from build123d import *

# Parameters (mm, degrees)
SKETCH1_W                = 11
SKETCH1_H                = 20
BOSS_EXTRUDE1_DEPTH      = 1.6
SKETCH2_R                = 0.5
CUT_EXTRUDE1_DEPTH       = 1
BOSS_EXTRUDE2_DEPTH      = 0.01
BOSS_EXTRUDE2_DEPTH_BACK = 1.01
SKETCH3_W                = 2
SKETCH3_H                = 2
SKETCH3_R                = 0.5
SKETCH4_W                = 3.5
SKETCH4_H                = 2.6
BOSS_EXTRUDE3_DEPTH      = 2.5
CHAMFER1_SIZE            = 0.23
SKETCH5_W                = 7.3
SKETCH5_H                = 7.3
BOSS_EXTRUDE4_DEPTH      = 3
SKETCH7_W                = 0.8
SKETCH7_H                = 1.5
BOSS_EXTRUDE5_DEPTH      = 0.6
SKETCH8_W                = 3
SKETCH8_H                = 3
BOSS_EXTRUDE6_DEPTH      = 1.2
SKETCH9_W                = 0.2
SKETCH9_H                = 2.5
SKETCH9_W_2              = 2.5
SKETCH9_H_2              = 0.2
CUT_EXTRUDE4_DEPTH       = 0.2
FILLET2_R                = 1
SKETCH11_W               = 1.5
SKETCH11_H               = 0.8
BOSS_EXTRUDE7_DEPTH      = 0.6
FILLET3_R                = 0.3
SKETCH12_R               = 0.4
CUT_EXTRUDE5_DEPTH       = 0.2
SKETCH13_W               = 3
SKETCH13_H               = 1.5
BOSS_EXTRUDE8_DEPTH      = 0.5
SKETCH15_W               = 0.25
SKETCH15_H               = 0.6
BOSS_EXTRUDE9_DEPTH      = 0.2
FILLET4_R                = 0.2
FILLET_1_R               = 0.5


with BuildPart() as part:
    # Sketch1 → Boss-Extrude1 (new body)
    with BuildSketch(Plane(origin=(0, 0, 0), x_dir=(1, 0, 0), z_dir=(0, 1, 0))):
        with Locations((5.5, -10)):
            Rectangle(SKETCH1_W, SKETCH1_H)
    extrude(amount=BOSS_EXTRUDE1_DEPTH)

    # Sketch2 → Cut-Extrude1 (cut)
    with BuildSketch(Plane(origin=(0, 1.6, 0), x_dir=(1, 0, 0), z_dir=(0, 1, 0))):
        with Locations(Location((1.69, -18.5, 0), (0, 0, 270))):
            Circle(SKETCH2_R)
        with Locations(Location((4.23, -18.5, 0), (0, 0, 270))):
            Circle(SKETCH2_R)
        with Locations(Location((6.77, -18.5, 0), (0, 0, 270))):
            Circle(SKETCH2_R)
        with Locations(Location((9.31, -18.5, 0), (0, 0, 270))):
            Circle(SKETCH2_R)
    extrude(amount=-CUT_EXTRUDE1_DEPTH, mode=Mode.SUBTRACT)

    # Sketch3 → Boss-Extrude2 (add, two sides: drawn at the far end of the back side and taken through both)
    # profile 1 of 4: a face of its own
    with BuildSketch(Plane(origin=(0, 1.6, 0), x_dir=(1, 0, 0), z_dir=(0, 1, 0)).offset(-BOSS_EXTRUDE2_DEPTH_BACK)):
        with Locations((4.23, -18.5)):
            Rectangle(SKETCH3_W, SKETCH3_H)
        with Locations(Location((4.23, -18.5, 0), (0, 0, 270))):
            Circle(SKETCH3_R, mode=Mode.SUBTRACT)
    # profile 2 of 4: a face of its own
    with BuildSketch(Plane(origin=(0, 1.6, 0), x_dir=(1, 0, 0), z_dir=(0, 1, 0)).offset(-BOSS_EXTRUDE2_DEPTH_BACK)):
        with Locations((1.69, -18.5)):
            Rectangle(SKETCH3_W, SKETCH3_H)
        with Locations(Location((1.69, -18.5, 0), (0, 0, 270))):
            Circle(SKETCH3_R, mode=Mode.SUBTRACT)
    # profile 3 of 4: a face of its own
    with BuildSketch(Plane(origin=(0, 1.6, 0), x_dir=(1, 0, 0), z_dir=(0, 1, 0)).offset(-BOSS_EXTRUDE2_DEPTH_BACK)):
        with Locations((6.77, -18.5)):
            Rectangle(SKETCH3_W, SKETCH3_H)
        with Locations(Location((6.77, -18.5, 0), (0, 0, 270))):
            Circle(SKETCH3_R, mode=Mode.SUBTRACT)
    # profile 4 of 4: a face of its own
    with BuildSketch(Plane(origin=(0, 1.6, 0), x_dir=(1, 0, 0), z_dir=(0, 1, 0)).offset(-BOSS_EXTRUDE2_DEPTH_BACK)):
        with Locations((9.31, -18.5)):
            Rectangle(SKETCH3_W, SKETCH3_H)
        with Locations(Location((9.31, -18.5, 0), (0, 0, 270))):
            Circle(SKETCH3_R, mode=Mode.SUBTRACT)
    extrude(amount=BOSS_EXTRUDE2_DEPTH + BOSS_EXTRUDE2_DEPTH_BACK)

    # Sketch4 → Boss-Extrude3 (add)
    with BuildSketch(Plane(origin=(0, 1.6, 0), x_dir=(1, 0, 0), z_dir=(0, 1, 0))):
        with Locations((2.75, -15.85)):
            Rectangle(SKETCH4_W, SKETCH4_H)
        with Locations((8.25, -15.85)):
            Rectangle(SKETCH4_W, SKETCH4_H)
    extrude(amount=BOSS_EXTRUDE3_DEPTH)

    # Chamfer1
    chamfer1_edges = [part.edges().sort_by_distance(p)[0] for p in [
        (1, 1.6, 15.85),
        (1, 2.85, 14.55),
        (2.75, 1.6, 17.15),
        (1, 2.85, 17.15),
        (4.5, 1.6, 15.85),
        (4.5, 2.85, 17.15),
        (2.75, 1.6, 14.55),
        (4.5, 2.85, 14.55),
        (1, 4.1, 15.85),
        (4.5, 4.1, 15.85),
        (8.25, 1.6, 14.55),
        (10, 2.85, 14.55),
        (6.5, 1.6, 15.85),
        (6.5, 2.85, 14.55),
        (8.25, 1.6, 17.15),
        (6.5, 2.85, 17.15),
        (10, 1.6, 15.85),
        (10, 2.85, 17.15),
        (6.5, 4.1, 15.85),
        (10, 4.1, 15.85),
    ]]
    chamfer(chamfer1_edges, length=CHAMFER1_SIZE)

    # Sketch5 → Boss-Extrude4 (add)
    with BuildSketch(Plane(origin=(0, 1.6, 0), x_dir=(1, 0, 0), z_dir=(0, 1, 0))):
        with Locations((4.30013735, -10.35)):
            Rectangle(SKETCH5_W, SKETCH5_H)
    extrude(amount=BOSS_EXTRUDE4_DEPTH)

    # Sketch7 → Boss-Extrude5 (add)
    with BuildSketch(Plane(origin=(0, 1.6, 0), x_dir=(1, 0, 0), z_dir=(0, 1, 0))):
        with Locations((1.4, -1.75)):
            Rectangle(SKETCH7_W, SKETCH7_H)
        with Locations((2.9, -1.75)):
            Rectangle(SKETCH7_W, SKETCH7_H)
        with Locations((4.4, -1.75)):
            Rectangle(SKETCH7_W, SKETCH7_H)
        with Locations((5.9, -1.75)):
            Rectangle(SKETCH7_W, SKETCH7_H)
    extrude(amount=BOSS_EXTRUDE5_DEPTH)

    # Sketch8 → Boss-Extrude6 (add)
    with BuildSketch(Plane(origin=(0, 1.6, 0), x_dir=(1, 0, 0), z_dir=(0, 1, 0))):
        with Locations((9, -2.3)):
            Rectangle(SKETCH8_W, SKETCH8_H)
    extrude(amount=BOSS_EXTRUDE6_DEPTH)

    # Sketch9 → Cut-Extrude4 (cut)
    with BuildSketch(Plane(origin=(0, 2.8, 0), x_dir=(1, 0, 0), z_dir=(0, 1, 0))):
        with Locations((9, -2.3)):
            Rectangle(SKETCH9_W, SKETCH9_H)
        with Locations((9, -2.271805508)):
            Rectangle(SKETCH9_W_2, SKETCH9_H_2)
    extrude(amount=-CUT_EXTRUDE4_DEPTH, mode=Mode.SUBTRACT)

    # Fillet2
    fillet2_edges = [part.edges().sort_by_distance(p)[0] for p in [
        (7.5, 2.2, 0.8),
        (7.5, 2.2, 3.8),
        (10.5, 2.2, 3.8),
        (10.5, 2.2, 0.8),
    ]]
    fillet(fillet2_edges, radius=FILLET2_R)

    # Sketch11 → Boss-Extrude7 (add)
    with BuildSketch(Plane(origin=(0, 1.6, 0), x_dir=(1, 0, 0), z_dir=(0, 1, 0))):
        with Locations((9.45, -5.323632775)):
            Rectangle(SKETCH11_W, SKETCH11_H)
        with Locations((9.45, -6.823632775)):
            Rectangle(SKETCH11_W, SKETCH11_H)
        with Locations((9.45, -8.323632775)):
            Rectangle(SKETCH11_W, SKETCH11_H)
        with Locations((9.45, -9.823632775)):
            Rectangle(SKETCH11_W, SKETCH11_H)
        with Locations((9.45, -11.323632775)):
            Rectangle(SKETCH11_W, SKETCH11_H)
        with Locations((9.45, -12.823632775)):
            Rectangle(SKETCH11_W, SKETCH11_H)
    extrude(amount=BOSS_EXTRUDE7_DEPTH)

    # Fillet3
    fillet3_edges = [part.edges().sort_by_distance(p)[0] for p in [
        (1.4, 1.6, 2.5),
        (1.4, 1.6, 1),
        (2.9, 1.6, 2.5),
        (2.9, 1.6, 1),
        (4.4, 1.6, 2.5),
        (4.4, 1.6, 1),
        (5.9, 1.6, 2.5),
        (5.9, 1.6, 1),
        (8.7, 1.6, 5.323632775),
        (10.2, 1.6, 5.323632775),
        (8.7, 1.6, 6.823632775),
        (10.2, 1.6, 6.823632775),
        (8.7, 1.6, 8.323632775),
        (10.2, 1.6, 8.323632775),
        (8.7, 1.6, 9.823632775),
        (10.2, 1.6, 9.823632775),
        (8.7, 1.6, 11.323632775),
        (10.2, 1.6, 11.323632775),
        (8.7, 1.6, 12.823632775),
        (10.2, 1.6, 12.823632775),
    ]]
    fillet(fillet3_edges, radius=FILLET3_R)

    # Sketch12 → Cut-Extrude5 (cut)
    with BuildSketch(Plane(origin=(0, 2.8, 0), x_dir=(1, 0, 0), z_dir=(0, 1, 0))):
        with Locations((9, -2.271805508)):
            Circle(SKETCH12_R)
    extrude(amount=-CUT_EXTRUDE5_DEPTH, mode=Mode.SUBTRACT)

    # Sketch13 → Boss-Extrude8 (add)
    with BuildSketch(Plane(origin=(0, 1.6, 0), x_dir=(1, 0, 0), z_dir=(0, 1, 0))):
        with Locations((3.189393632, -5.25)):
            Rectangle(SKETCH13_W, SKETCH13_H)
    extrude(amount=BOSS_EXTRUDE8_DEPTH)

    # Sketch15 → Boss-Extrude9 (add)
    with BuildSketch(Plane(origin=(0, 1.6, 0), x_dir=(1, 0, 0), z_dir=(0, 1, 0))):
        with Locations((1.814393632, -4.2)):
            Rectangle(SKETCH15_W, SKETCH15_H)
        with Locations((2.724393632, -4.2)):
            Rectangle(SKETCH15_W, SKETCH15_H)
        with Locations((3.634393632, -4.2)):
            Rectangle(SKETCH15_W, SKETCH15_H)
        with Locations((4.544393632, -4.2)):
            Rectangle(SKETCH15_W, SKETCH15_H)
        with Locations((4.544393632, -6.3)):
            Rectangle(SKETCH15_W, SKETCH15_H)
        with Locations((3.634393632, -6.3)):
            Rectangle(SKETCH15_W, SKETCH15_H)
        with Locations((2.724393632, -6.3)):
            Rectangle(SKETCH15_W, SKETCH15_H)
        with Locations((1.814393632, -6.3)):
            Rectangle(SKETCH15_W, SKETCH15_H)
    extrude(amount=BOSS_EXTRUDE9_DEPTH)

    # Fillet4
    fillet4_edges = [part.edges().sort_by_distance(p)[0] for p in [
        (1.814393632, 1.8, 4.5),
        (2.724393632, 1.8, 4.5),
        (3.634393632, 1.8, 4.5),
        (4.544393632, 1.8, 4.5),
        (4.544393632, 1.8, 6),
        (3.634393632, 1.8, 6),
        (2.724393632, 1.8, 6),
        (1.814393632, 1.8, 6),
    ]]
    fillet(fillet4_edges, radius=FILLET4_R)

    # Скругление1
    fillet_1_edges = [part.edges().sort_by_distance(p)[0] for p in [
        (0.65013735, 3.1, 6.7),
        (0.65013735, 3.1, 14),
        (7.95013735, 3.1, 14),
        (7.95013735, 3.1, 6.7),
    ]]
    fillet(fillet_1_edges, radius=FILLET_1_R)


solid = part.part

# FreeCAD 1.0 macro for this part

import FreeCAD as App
import Part
import Sketcher

V = App.Vector
Q = App.Units.Quantity


def edges_at(feature, points):
    """Names of the edges that pass closest to the given points."""
    edges = feature.Shape.Edges
    near = lambda p: min(range(len(edges)), key=lambda i: edges[i].distToShape(Part.Vertex(*p))[0])
    return sorted({f"Edge{near(p) + 1}" for p in points})

doc = App.newDocument("Part")
body = doc.addObject("PartDesign::Body", "Body")

# Sketch on XZ plane
sketch1 = body.newObject("Sketcher::SketchObject", "Sketch")
sketch1.AttachmentSupport = (doc.getObject("XZ_Plane"), [""])
sketch1.MapMode = "FlatFace"
sketch1.addGeometry(Part.LineSegment(V(0, 0, 0), V(0, 20, 0)), False)
sketch1.addGeometry(Part.LineSegment(V(0, 20, 0), V(11, 20, 0)), False)
sketch1.addGeometry(Part.LineSegment(V(11, 20, 0), V(11, 0, 0)), False)
sketch1.addGeometry(Part.LineSegment(V(11, 0, 0), V(0, 0, 0)), False)
sketch1.addConstraint(Sketcher.Constraint("Coincident", 0, 2, 1, 1))
sketch1.addConstraint(Sketcher.Constraint("Coincident", 1, 2, 2, 1))
sketch1.addConstraint(Sketcher.Constraint("Coincident", 2, 2, 3, 1))
sketch1.addConstraint(Sketcher.Constraint("Coincident", 3, 2, 0, 1))
sketch1.addConstraint(Sketcher.Constraint("Vertical", 0))
sketch1.addConstraint(Sketcher.Constraint("Horizontal", 1))
sketch1.addConstraint(Sketcher.Constraint("Vertical", 2))
sketch1.addConstraint(Sketcher.Constraint("Horizontal", 3))
sketch1.addConstraint(Sketcher.Constraint("Coincident", 3, 2, -1, 1))
sketch1.addConstraint(Sketcher.Constraint("DistanceX", 1, 1, 1, 2, Q("11 mm")))
sketch1.addConstraint(Sketcher.Constraint("DistanceY", 0, 1, 0, 2, Q("20 mm")))
pad1 = body.newObject("PartDesign::Pad", "Pad")
pad1.Profile = sketch1
pad1.Length = 1.6
pad1.Reversed = True

# Sketch on XZ plane
sketch2 = body.newObject("Sketcher::SketchObject", "Sketch001")
sketch2.AttachmentSupport = (doc.getObject("XZ_Plane"), [""])
sketch2.MapMode = "FlatFace"
sketch2.AttachmentOffset = App.Placement(V(0, 0, -1.6), App.Rotation())
sketch2.addGeometry(Part.Circle(V(1.7, 18.5, 0), V(0, 0, 1), 0.5), False)
sketch2.addGeometry(Part.Circle(V(4.2, 18.5, 0), V(0, 0, 1), 0.5), False)
sketch2.addGeometry(Part.Circle(V(6.8, 18.5, 0), V(0, 0, 1), 0.5), False)
sketch2.addGeometry(Part.Circle(V(9.3, 18.5, 0), V(0, 0, 1), 0.5), False)
sketch2.addConstraint(Sketcher.Constraint("Equal", 0, 1))
sketch2.addConstraint(Sketcher.Constraint("Equal", 1, 2))
sketch2.addConstraint(Sketcher.Constraint("Equal", 2, 3))
sketch2.addConstraint(Sketcher.Constraint("Horizontal", 0, 3, 1, 3))
sketch2.addConstraint(Sketcher.Constraint("Horizontal", 1, 3, 2, 3))
sketch2.addConstraint(Sketcher.Constraint("Horizontal", 2, 3, 3, 3))
sketch2.addConstraint(Sketcher.Constraint("Diameter", 0, Q("1 mm")))
sketch2.addConstraint(Sketcher.Constraint("DistanceY", -1, 1, 0, 3, Q("18.5 mm")))
sketch2.addConstraint(Sketcher.Constraint("DistanceX", -1, 1, 0, 3, Q("1.69 mm")))
sketch2.addConstraint(Sketcher.Constraint("DistanceX", -1, 1, 1, 3, Q("4.23 mm")))
sketch2.addConstraint(Sketcher.Constraint("DistanceX", -1, 1, 2, 3, Q("6.77 mm")))
sketch2.addConstraint(Sketcher.Constraint("DistanceX", -1, 1, 3, 3, Q("9.31 mm")))
pocket1 = body.newObject("PartDesign::Pocket", "Pocket")
pocket1.Profile = sketch2
pocket1.Length = 1
pocket1.Reversed = True

# Sketch on XZ plane
sketch3 = body.newObject("Sketcher::SketchObject", "Sketch002")
sketch3.AttachmentSupport = (doc.getObject("XZ_Plane"), [""])
sketch3.MapMode = "FlatFace"
sketch3.AttachmentOffset = App.Placement(V(0, 0, -1.6), App.Rotation())
sketch3.addGeometry(Part.LineSegment(V(3.2, 17.5, 0), V(3.2, 19.5, 0)), False)
sketch3.addGeometry(Part.LineSegment(V(3.2, 19.5, 0), V(5.2, 19.5, 0)), False)
sketch3.addGeometry(Part.LineSegment(V(5.2, 19.5, 0), V(5.2, 17.5, 0)), False)
sketch3.addGeometry(Part.LineSegment(V(5.2, 17.5, 0), V(3.2, 17.5, 0)), False)
sketch3.addGeometry(Part.Circle(V(4.2, 18.5, 0), V(0, 0, 1), 0.5), False)
sketch3.addGeometry(Part.LineSegment(V(0.7, 17.5, 0), V(0.7, 19.5, 0)), False)
sketch3.addGeometry(Part.LineSegment(V(0.7, 19.5, 0), V(2.7, 19.5, 0)), False)
sketch3.addGeometry(Part.LineSegment(V(2.7, 19.5, 0), V(2.7, 17.5, 0)), False)
sketch3.addGeometry(Part.LineSegment(V(2.7, 17.5, 0), V(0.7, 17.5, 0)), False)
sketch3.addGeometry(Part.Circle(V(1.7, 18.5, 0), V(0, 0, 1), 0.5), False)
sketch3.addGeometry(Part.LineSegment(V(5.8, 17.5, 0), V(5.8, 19.5, 0)), False)
sketch3.addGeometry(Part.LineSegment(V(5.8, 19.5, 0), V(7.8, 19.5, 0)), False)
sketch3.addGeometry(Part.LineSegment(V(7.8, 19.5, 0), V(7.8, 17.5, 0)), False)
sketch3.addGeometry(Part.LineSegment(V(7.8, 17.5, 0), V(5.8, 17.5, 0)), False)
sketch3.addGeometry(Part.Circle(V(6.8, 18.5, 0), V(0, 0, 1), 0.5), False)
sketch3.addGeometry(Part.LineSegment(V(8.3, 17.5, 0), V(8.3, 19.5, 0)), False)
sketch3.addGeometry(Part.LineSegment(V(8.3, 19.5, 0), V(10.3, 19.5, 0)), False)
sketch3.addGeometry(Part.LineSegment(V(10.3, 19.5, 0), V(10.3, 17.5, 0)), False)
sketch3.addGeometry(Part.LineSegment(V(10.3, 17.5, 0), V(8.3, 17.5, 0)), False)
sketch3.addGeometry(Part.Circle(V(9.3, 18.5, 0), V(0, 0, 1), 0.5), False)
sketch3.addConstraint(Sketcher.Constraint("Coincident", 0, 2, 1, 1))
sketch3.addConstraint(Sketcher.Constraint("Coincident", 1, 2, 2, 1))
sketch3.addConstraint(Sketcher.Constraint("Coincident", 2, 2, 3, 1))
sketch3.addConstraint(Sketcher.Constraint("Coincident", 3, 2, 0, 1))
sketch3.addConstraint(Sketcher.Constraint("Coincident", 5, 2, 6, 1))
sketch3.addConstraint(Sketcher.Constraint("Coincident", 6, 2, 7, 1))
sketch3.addConstraint(Sketcher.Constraint("Coincident", 7, 2, 8, 1))
sketch3.addConstraint(Sketcher.Constraint("Coincident", 8, 2, 5, 1))
sketch3.addConstraint(Sketcher.Constraint("Coincident", 10, 2, 11, 1))
sketch3.addConstraint(Sketcher.Constraint("Coincident", 11, 2, 12, 1))
sketch3.addConstraint(Sketcher.Constraint("Coincident", 12, 2, 13, 1))
sketch3.addConstraint(Sketcher.Constraint("Coincident", 13, 2, 10, 1))
sketch3.addConstraint(Sketcher.Constraint("Coincident", 15, 2, 16, 1))
sketch3.addConstraint(Sketcher.Constraint("Coincident", 16, 2, 17, 1))
sketch3.addConstraint(Sketcher.Constraint("Coincident", 17, 2, 18, 1))
sketch3.addConstraint(Sketcher.Constraint("Coincident", 18, 2, 15, 1))
sketch3.addConstraint(Sketcher.Constraint("Vertical", 0))
sketch3.addConstraint(Sketcher.Constraint("Horizontal", 1))
sketch3.addConstraint(Sketcher.Constraint("Vertical", 2))
sketch3.addConstraint(Sketcher.Constraint("Horizontal", 3))
sketch3.addConstraint(Sketcher.Constraint("Vertical", 5))
sketch3.addConstraint(Sketcher.Constraint("Horizontal", 6))
sketch3.addConstraint(Sketcher.Constraint("Vertical", 7))
sketch3.addConstraint(Sketcher.Constraint("Horizontal", 8))
sketch3.addConstraint(Sketcher.Constraint("Vertical", 10))
sketch3.addConstraint(Sketcher.Constraint("Horizontal", 11))
sketch3.addConstraint(Sketcher.Constraint("Vertical", 12))
sketch3.addConstraint(Sketcher.Constraint("Horizontal", 13))
sketch3.addConstraint(Sketcher.Constraint("Vertical", 15))
sketch3.addConstraint(Sketcher.Constraint("Horizontal", 16))
sketch3.addConstraint(Sketcher.Constraint("Vertical", 17))
sketch3.addConstraint(Sketcher.Constraint("Horizontal", 18))
sketch3.addConstraint(Sketcher.Constraint("Equal", 4, 9))
sketch3.addConstraint(Sketcher.Constraint("Equal", 9, 14))
sketch3.addConstraint(Sketcher.Constraint("Equal", 14, 19))
sketch3.addConstraint(Sketcher.Constraint("Horizontal", 4, 3, 9, 3))
sketch3.addConstraint(Sketcher.Constraint("Horizontal", 9, 3, 14, 3))
sketch3.addConstraint(Sketcher.Constraint("Horizontal", 14, 3, 19, 3))
sketch3.addConstraint(Sketcher.Constraint("Horizontal", 1, 2, 5, 2))
sketch3.addConstraint(Sketcher.Constraint("Horizontal", 3, 2, 7, 2))
sketch3.addConstraint(Sketcher.Constraint("Horizontal", 6, 2, 10, 2))
sketch3.addConstraint(Sketcher.Constraint("Horizontal", 8, 2, 12, 2))
sketch3.addConstraint(Sketcher.Constraint("Horizontal", 11, 2, 15, 2))
sketch3.addConstraint(Sketcher.Constraint("Horizontal", 13, 2, 17, 2))
sketch3.addConstraint(Sketcher.Constraint("Equal", 3, 6))
sketch3.addConstraint(Sketcher.Constraint("Equal", 8, 11))
sketch3.addConstraint(Sketcher.Constraint("Equal", 13, 16))
sketch3.addConstraint(Sketcher.Constraint("Equal", 18, 0))
sketch3.addConstraint(Sketcher.Constraint("Diameter", 4, Q("1 mm")))
sketch3.addConstraint(Sketcher.Constraint("DistanceX", 1, 1, 1, 2, Q("2 mm")))
sketch3.addConstraint(Sketcher.Constraint("DistanceX", 0, 2, 4, 3, Q("1 mm")))
sketch3.addConstraint(Sketcher.Constraint("DistanceY", 4, 3, 0, 2, Q("1 mm")))
sketch3.addConstraint(Sketcher.Constraint("DistanceX", 5, 2, 9, 3, Q("1 mm")))
sketch3.addConstraint(Sketcher.Constraint("DistanceX", 10, 2, 14, 3, Q("1 mm")))
sketch3.addConstraint(Sketcher.Constraint("DistanceX", 15, 2, 19, 3, Q("1 mm")))
sketch3.addConstraint(Sketcher.Constraint("DistanceY", -1, 1, 4, 3, Q("18.5 mm")))
sketch3.addConstraint(Sketcher.Constraint("DistanceX", -1, 1, 4, 3, Q("4.23 mm")))
sketch3.addConstraint(Sketcher.Constraint("DistanceX", -1, 1, 9, 3, Q("1.69 mm")))
sketch3.addConstraint(Sketcher.Constraint("DistanceX", -1, 1, 14, 3, Q("6.77 mm")))
sketch3.addConstraint(Sketcher.Constraint("DistanceX", -1, 1, 19, 3, Q("9.31 mm")))
pad2 = body.newObject("PartDesign::Pad", "Pad001")
pad2.Profile = sketch3
pad2.Type = "TwoLengths"
pad2.Length = 0.01
pad2.Length2 = 1.01
pad2.Reversed = True

# Sketch on XZ plane
sketch4 = body.newObject("Sketcher::SketchObject", "Sketch003")
sketch4.AttachmentSupport = (doc.getObject("XZ_Plane"), [""])
sketch4.MapMode = "FlatFace"
sketch4.AttachmentOffset = App.Placement(V(0, 0, -1.6), App.Rotation())
sketch4.addGeometry(Part.LineSegment(V(1, 14.6, 0), V(1, 17.1, 0)), False)
sketch4.addGeometry(Part.LineSegment(V(1, 17.1, 0), V(4.5, 17.1, 0)), False)
sketch4.addGeometry(Part.LineSegment(V(4.5, 17.1, 0), V(4.5, 14.6, 0)), False)
sketch4.addGeometry(Part.LineSegment(V(4.5, 14.6, 0), V(1, 14.6, 0)), False)
sketch4.addGeometry(Part.LineSegment(V(6.5, 14.6, 0), V(6.5, 17.1, 0)), False)
sketch4.addGeometry(Part.LineSegment(V(6.5, 17.1, 0), V(10, 17.1, 0)), False)
sketch4.addGeometry(Part.LineSegment(V(10, 17.1, 0), V(10, 14.6, 0)), False)
sketch4.addGeometry(Part.LineSegment(V(10, 14.6, 0), V(6.5, 14.6, 0)), False)
sketch4.addConstraint(Sketcher.Constraint("Coincident", 0, 2, 1, 1))
sketch4.addConstraint(Sketcher.Constraint("Coincident", 1, 2, 2, 1))
sketch4.addConstraint(Sketcher.Constraint("Coincident", 2, 2, 3, 1))
sketch4.addConstraint(Sketcher.Constraint("Coincident", 3, 2, 0, 1))
sketch4.addConstraint(Sketcher.Constraint("Coincident", 4, 2, 5, 1))
sketch4.addConstraint(Sketcher.Constraint("Coincident", 5, 2, 6, 1))
sketch4.addConstraint(Sketcher.Constraint("Coincident", 6, 2, 7, 1))
sketch4.addConstraint(Sketcher.Constraint("Coincident", 7, 2, 4, 1))
sketch4.addConstraint(Sketcher.Constraint("Vertical", 0))
sketch4.addConstraint(Sketcher.Constraint("Horizontal", 1))
sketch4.addConstraint(Sketcher.Constraint("Vertical", 2))
sketch4.addConstraint(Sketcher.Constraint("Horizontal", 3))
sketch4.addConstraint(Sketcher.Constraint("Vertical", 4))
sketch4.addConstraint(Sketcher.Constraint("Horizontal", 5))
sketch4.addConstraint(Sketcher.Constraint("Vertical", 6))
sketch4.addConstraint(Sketcher.Constraint("Horizontal", 7))
sketch4.addConstraint(Sketcher.Constraint("Horizontal", 1, 2, 4, 2))
sketch4.addConstraint(Sketcher.Constraint("Horizontal", 3, 2, 6, 2))
sketch4.addConstraint(Sketcher.Constraint("Equal", 3, 5))
sketch4.addConstraint(Sketcher.Constraint("DistanceX", 1, 1, 1, 2, Q("3.5 mm")))
sketch4.addConstraint(Sketcher.Constraint("DistanceY", 0, 1, 0, 2, Q("2.6 mm")))
sketch4.addConstraint(Sketcher.Constraint("DistanceX", -1, 1, 0, 2, Q("1 mm")))
sketch4.addConstraint(Sketcher.Constraint("DistanceX", -1, 1, 5, 2, Q("10 mm")))
sketch4.addConstraint(Sketcher.Constraint("DistanceY", -1, 1, 0, 2, Q("17.15 mm")))
pad3 = body.newObject("PartDesign::Pad", "Pad002")
pad3.Profile = sketch4
pad3.Length = 2.5
pad3.Reversed = True
doc.recompute()

chamfer = body.newObject("PartDesign::Chamfer", "Chamfer")
chamfer.Base = (pad3, edges_at(pad3, [
    (1, 1.6, 15.85),
    (1, 2.85, 14.55),
    (2.75, 1.6, 17.15),
    (1, 2.85, 17.15),
    (4.5, 1.6, 15.85),
    (4.5, 2.85, 17.15),
    (2.75, 1.6, 14.55),
    (4.5, 2.85, 14.55),
    (1, 4.1, 15.85),
    (4.5, 4.1, 15.85),
    (8.25, 1.6, 14.55),
    (10, 2.85, 14.55),
    (6.5, 1.6, 15.85),
    (6.5, 2.85, 14.55),
    (8.25, 1.6, 17.15),
    (6.5, 2.85, 17.15),
    (10, 1.6, 15.85),
    (10, 2.85, 17.15),
    (6.5, 4.1, 15.85),
    (10, 4.1, 15.85),
]))
chamfer.Size = 0.23

# Sketch on XZ plane
sketch5 = body.newObject("Sketcher::SketchObject", "Sketch004")
sketch5.AttachmentSupport = (doc.getObject("XZ_Plane"), [""])
sketch5.MapMode = "FlatFace"
sketch5.AttachmentOffset = App.Placement(V(0, 0, -1.6), App.Rotation())
sketch5.addGeometry(Part.LineSegment(V(1, 7, 0), V(1, 14, 0)), False)
sketch5.addGeometry(Part.LineSegment(V(1, 14, 0), V(8, 14, 0)), False)
sketch5.addGeometry(Part.LineSegment(V(8, 14, 0), V(8, 7, 0)), False)
sketch5.addGeometry(Part.LineSegment(V(8, 7, 0), V(1, 7, 0)), False)
sketch5.addConstraint(Sketcher.Constraint("Coincident", 0, 2, 1, 1))
sketch5.addConstraint(Sketcher.Constraint("Coincident", 1, 2, 2, 1))
sketch5.addConstraint(Sketcher.Constraint("Coincident", 2, 2, 3, 1))
sketch5.addConstraint(Sketcher.Constraint("Coincident", 3, 2, 0, 1))
sketch5.addConstraint(Sketcher.Constraint("Vertical", 0))
sketch5.addConstraint(Sketcher.Constraint("Horizontal", 1))
sketch5.addConstraint(Sketcher.Constraint("Vertical", 2))
sketch5.addConstraint(Sketcher.Constraint("Horizontal", 3))
sketch5.addConstraint(Sketcher.Constraint("Equal", 3, 0))
sketch5.addConstraint(Sketcher.Constraint("DistanceX", 1, 1, 1, 2, Q("7.3 mm")))
sketch5.addConstraint(Sketcher.Constraint("DistanceY", -1, 1, 0, 2, Q("14 mm")))
sketch5.addConstraint(Sketcher.Constraint("DistanceX", -1, 1, 0, 2, Q("0.650137 mm")))
pad4 = body.newObject("PartDesign::Pad", "Pad003")
pad4.Profile = sketch5
pad4.Length = 3
pad4.Reversed = True

# Sketch on XZ plane
sketch6 = body.newObject("Sketcher::SketchObject", "Sketch005")
sketch6.AttachmentSupport = (doc.getObject("XZ_Plane"), [""])
sketch6.MapMode = "FlatFace"
sketch6.AttachmentOffset = App.Placement(V(0, 0, -1.6), App.Rotation())
sketch6.addGeometry(Part.LineSegment(V(1, 1, 0), V(1, 2.5, 0)), False)
sketch6.addGeometry(Part.LineSegment(V(1, 2.5, 0), V(1.8, 2.5, 0)), False)
sketch6.addGeometry(Part.LineSegment(V(1.8, 2.5, 0), V(1.8, 1, 0)), False)
sketch6.addGeometry(Part.LineSegment(V(1.8, 1, 0), V(1, 1, 0)), False)
sketch6.addGeometry(Part.LineSegment(V(2.5, 1, 0), V(2.5, 2.5, 0)), False)
sketch6.addGeometry(Part.LineSegment(V(2.5, 2.5, 0), V(3.3, 2.5, 0)), False)
sketch6.addGeometry(Part.LineSegment(V(3.3, 2.5, 0), V(3.3, 1, 0)), False)
sketch6.addGeometry(Part.LineSegment(V(3.3, 1, 0), V(2.5, 1, 0)), False)
sketch6.addGeometry(Part.LineSegment(V(4, 1, 0), V(4, 2.5, 0)), False)
sketch6.addGeometry(Part.LineSegment(V(4, 2.5, 0), V(4.8, 2.5, 0)), False)
sketch6.addGeometry(Part.LineSegment(V(4.8, 2.5, 0), V(4.8, 1, 0)), False)
sketch6.addGeometry(Part.LineSegment(V(4.8, 1, 0), V(4, 1, 0)), False)
sketch6.addGeometry(Part.LineSegment(V(5.5, 1, 0), V(5.5, 2.5, 0)), False)
sketch6.addGeometry(Part.LineSegment(V(5.5, 2.5, 0), V(6.3, 2.5, 0)), False)
sketch6.addGeometry(Part.LineSegment(V(6.3, 2.5, 0), V(6.3, 1, 0)), False)
sketch6.addGeometry(Part.LineSegment(V(6.3, 1, 0), V(5.5, 1, 0)), False)
sketch6.addConstraint(Sketcher.Constraint("Coincident", 0, 2, 1, 1))
sketch6.addConstraint(Sketcher.Constraint("Coincident", 1, 2, 2, 1))
sketch6.addConstraint(Sketcher.Constraint("Coincident", 2, 2, 3, 1))
sketch6.addConstraint(Sketcher.Constraint("Coincident", 3, 2, 0, 1))
sketch6.addConstraint(Sketcher.Constraint("Coincident", 4, 2, 5, 1))
sketch6.addConstraint(Sketcher.Constraint("Coincident", 5, 2, 6, 1))
sketch6.addConstraint(Sketcher.Constraint("Coincident", 6, 2, 7, 1))
sketch6.addConstraint(Sketcher.Constraint("Coincident", 7, 2, 4, 1))
sketch6.addConstraint(Sketcher.Constraint("Coincident", 8, 2, 9, 1))
sketch6.addConstraint(Sketcher.Constraint("Coincident", 9, 2, 10, 1))
sketch6.addConstraint(Sketcher.Constraint("Coincident", 10, 2, 11, 1))
sketch6.addConstraint(Sketcher.Constraint("Coincident", 11, 2, 8, 1))
sketch6.addConstraint(Sketcher.Constraint("Coincident", 12, 2, 13, 1))
sketch6.addConstraint(Sketcher.Constraint("Coincident", 13, 2, 14, 1))
sketch6.addConstraint(Sketcher.Constraint("Coincident", 14, 2, 15, 1))
sketch6.addConstraint(Sketcher.Constraint("Coincident", 15, 2, 12, 1))
sketch6.addConstraint(Sketcher.Constraint("Vertical", 0))
sketch6.addConstraint(Sketcher.Constraint("Horizontal", 1))
sketch6.addConstraint(Sketcher.Constraint("Vertical", 2))
sketch6.addConstraint(Sketcher.Constraint("Horizontal", 3))
sketch6.addConstraint(Sketcher.Constraint("Vertical", 4))
sketch6.addConstraint(Sketcher.Constraint("Horizontal", 5))
sketch6.addConstraint(Sketcher.Constraint("Vertical", 6))
sketch6.addConstraint(Sketcher.Constraint("Horizontal", 7))
sketch6.addConstraint(Sketcher.Constraint("Vertical", 8))
sketch6.addConstraint(Sketcher.Constraint("Horizontal", 9))
sketch6.addConstraint(Sketcher.Constraint("Vertical", 10))
sketch6.addConstraint(Sketcher.Constraint("Horizontal", 11))
sketch6.addConstraint(Sketcher.Constraint("Vertical", 12))
sketch6.addConstraint(Sketcher.Constraint("Horizontal", 13))
sketch6.addConstraint(Sketcher.Constraint("Vertical", 14))
sketch6.addConstraint(Sketcher.Constraint("Horizontal", 15))
sketch6.addConstraint(Sketcher.Constraint("Horizontal", 1, 2, 4, 2))
sketch6.addConstraint(Sketcher.Constraint("Horizontal", 3, 2, 6, 2))
sketch6.addConstraint(Sketcher.Constraint("Horizontal", 5, 2, 8, 2))
sketch6.addConstraint(Sketcher.Constraint("Horizontal", 7, 2, 10, 2))
sketch6.addConstraint(Sketcher.Constraint("Horizontal", 9, 2, 12, 2))
sketch6.addConstraint(Sketcher.Constraint("Horizontal", 11, 2, 14, 2))
sketch6.addConstraint(Sketcher.Constraint("Equal", 3, 5))
sketch6.addConstraint(Sketcher.Constraint("Equal", 7, 9))
sketch6.addConstraint(Sketcher.Constraint("Equal", 11, 13))
sketch6.addConstraint(Sketcher.Constraint("DistanceX", 1, 1, 1, 2, Q("0.8 mm")))
sketch6.addConstraint(Sketcher.Constraint("DistanceY", 0, 1, 0, 2, Q("1.5 mm")))
sketch6.addConstraint(Sketcher.Constraint("DistanceX", -1, 1, 0, 2, Q("1 mm")))
sketch6.addConstraint(Sketcher.Constraint("DistanceY", -1, 1, 2, 2, Q("1 mm")))
sketch6.addConstraint(Sketcher.Constraint("DistanceX", -1, 1, 8, 2, Q("4 mm")))
sketch6.addConstraint(Sketcher.Constraint("DistanceX", -1, 1, 4, 2, Q("2.5 mm")))
sketch6.addConstraint(Sketcher.Constraint("DistanceX", -1, 1, 12, 2, Q("5.5 mm")))
pad5 = body.newObject("PartDesign::Pad", "Pad004")
pad5.Profile = sketch6
pad5.Length = 0.6
pad5.Reversed = True

# Sketch on XZ plane
sketch7 = body.newObject("Sketcher::SketchObject", "Sketch006")
sketch7.AttachmentSupport = (doc.getObject("XZ_Plane"), [""])
sketch7.MapMode = "FlatFace"
sketch7.AttachmentOffset = App.Placement(V(0, 0, -1.6), App.Rotation())
sketch7.addGeometry(Part.LineSegment(V(7.5, 0.8, 0), V(7.5, 3.8, 0)), False)
sketch7.addGeometry(Part.LineSegment(V(7.5, 3.8, 0), V(10.5, 3.8, 0)), False)
sketch7.addGeometry(Part.LineSegment(V(10.5, 3.8, 0), V(10.5, 0.8, 0)), False)
sketch7.addGeometry(Part.LineSegment(V(10.5, 0.8, 0), V(7.5, 0.8, 0)), False)
sketch7.addConstraint(Sketcher.Constraint("Coincident", 0, 2, 1, 1))
sketch7.addConstraint(Sketcher.Constraint("Coincident", 1, 2, 2, 1))
sketch7.addConstraint(Sketcher.Constraint("Coincident", 2, 2, 3, 1))
sketch7.addConstraint(Sketcher.Constraint("Coincident", 3, 2, 0, 1))
sketch7.addConstraint(Sketcher.Constraint("Vertical", 0))
sketch7.addConstraint(Sketcher.Constraint("Horizontal", 1))
sketch7.addConstraint(Sketcher.Constraint("Vertical", 2))
sketch7.addConstraint(Sketcher.Constraint("Horizontal", 3))
sketch7.addConstraint(Sketcher.Constraint("Equal", 3, 0))
sketch7.addConstraint(Sketcher.Constraint("DistanceX", 1, 1, 1, 2, Q("3 mm")))
sketch7.addConstraint(Sketcher.Constraint("DistanceX", -1, 1, 0, 2, Q("7.5 mm")))
sketch7.addConstraint(Sketcher.Constraint("DistanceY", -1, 1, 0, 2, Q("3.8 mm")))
pad6 = body.newObject("PartDesign::Pad", "Pad005")
pad6.Profile = sketch7
pad6.Length = 1.2
pad6.Reversed = True

# Sketch on XZ plane
sketch8 = body.newObject("Sketcher::SketchObject", "Sketch007")
sketch8.AttachmentSupport = (doc.getObject("XZ_Plane"), [""])
sketch8.MapMode = "FlatFace"
sketch8.AttachmentOffset = App.Placement(V(0, 0, -2.8), App.Rotation())
sketch8.addGeometry(Part.LineSegment(V(8.9, 2.37, 0), V(8.9, 3.55, 0)), False)
sketch8.addGeometry(Part.LineSegment(V(8.9, 3.55, 0), V(9.1, 3.55, 0)), False)
sketch8.addGeometry(Part.LineSegment(V(9.1, 3.55, 0), V(9.1, 2.37, 0)), False)
sketch8.addGeometry(Part.LineSegment(V(9.1, 2.37, 0), V(10.25, 2.37, 0)), False)
sketch8.addGeometry(Part.LineSegment(V(10.25, 2.37, 0), V(10.25, 2.17, 0)), False)
sketch8.addGeometry(Part.LineSegment(V(10.25, 2.17, 0), V(9.1, 2.17, 0)), False)
sketch8.addGeometry(Part.LineSegment(V(9.1, 2.17, 0), V(9.1, 1.05, 0)), False)
sketch8.addGeometry(Part.LineSegment(V(9.1, 1.05, 0), V(8.9, 1.05, 0)), False)
sketch8.addGeometry(Part.LineSegment(V(8.9, 1.05, 0), V(8.9, 2.17, 0)), False)
sketch8.addGeometry(Part.LineSegment(V(8.9, 2.17, 0), V(7.75, 2.17, 0)), False)
sketch8.addGeometry(Part.LineSegment(V(7.75, 2.17, 0), V(7.75, 2.37, 0)), False)
sketch8.addGeometry(Part.LineSegment(V(7.75, 2.37, 0), V(8.9, 2.37, 0)), False)
sketch8.addConstraint(Sketcher.Constraint("Coincident", 0, 2, 1, 1))
sketch8.addConstraint(Sketcher.Constraint("Coincident", 1, 2, 2, 1))
sketch8.addConstraint(Sketcher.Constraint("Coincident", 2, 2, 3, 1))
sketch8.addConstraint(Sketcher.Constraint("Coincident", 3, 2, 4, 1))
sketch8.addConstraint(Sketcher.Constraint("Coincident", 4, 2, 5, 1))
sketch8.addConstraint(Sketcher.Constraint("Coincident", 5, 2, 6, 1))
sketch8.addConstraint(Sketcher.Constraint("Coincident", 6, 2, 7, 1))
sketch8.addConstraint(Sketcher.Constraint("Coincident", 7, 2, 8, 1))
sketch8.addConstraint(Sketcher.Constraint("Coincident", 8, 2, 9, 1))
sketch8.addConstraint(Sketcher.Constraint("Coincident", 9, 2, 10, 1))
sketch8.addConstraint(Sketcher.Constraint("Coincident", 10, 2, 11, 1))
sketch8.addConstraint(Sketcher.Constraint("Coincident", 11, 2, 0, 1))
sketch8.addConstraint(Sketcher.Constraint("Vertical", 0))
sketch8.addConstraint(Sketcher.Constraint("Horizontal", 1))
sketch8.addConstraint(Sketcher.Constraint("Vertical", 2))
sketch8.addConstraint(Sketcher.Constraint("Horizontal", 3))
sketch8.addConstraint(Sketcher.Constraint("Vertical", 4))
sketch8.addConstraint(Sketcher.Constraint("Horizontal", 5))
sketch8.addConstraint(Sketcher.Constraint("Vertical", 6))
sketch8.addConstraint(Sketcher.Constraint("Horizontal", 7))
sketch8.addConstraint(Sketcher.Constraint("Vertical", 8))
sketch8.addConstraint(Sketcher.Constraint("Horizontal", 9))
sketch8.addConstraint(Sketcher.Constraint("Vertical", 10))
sketch8.addConstraint(Sketcher.Constraint("Horizontal", 11))
sketch8.addConstraint(Sketcher.Constraint("Horizontal", 5, 2, 8, 2))
sketch8.addConstraint(Sketcher.Constraint("Horizontal", 3, 2, 10, 2))
sketch8.addConstraint(Sketcher.Constraint("Vertical", 2, 2, 5, 2))
sketch8.addConstraint(Sketcher.Constraint("Vertical", 0, 2, 7, 2))
sketch8.addConstraint(Sketcher.Constraint("Equal", 5, 9))
sketch8.addConstraint(Sketcher.Constraint("Equal", 7, 4))
sketch8.addConstraint(Sketcher.Constraint("DistanceX", 1, 1, 1, 2, Q("0.2 mm")))
sketch8.addConstraint(Sketcher.Constraint("DistanceX", 3, 1, 3, 2, Q("1.15 mm")))
sketch8.addConstraint(Sketcher.Constraint("DistanceX", -1, 1, 0, 2, Q("8.9 mm")))
sketch8.addConstraint(Sketcher.Constraint("DistanceY", 6, 2, 1, 2, Q("2.5 mm")))
sketch8.addConstraint(Sketcher.Constraint("DistanceY", -1, 1, 0, 2, Q("3.55 mm")))
sketch8.addConstraint(Sketcher.Constraint("DistanceY", 0, 1, 0, 2, Q("1.178194 mm")))
pocket2 = body.newObject("PartDesign::Pocket", "Pocket001")
pocket2.Profile = sketch8
pocket2.Length = 0.2
pocket2.Reversed = True
doc.recompute()

fillet = body.newObject("PartDesign::Fillet", "Fillet")
fillet.Base = (pocket2, edges_at(pocket2, [
    (7.5, 2.2, 0.8),
    (7.5, 2.2, 3.8),
    (10.5, 2.2, 3.8),
    (10.5, 2.2, 0.8),
]))
fillet.Radius = 1

# Sketch on XZ plane
sketch9 = body.newObject("Sketcher::SketchObject", "Sketch008")
sketch9.AttachmentSupport = (doc.getObject("XZ_Plane"), [""])
sketch9.MapMode = "FlatFace"
sketch9.AttachmentOffset = App.Placement(V(0, 0, -1.6), App.Rotation())
sketch9.addGeometry(Part.LineSegment(V(8.7, 4.9, 0), V(8.7, 5.7, 0)), False)
sketch9.addGeometry(Part.LineSegment(V(8.7, 5.7, 0), V(10.2, 5.7, 0)), False)
sketch9.addGeometry(Part.LineSegment(V(10.2, 5.7, 0), V(10.2, 4.9, 0)), False)
sketch9.addGeometry(Part.LineSegment(V(10.2, 4.9, 0), V(8.7, 4.9, 0)), False)
sketch9.addGeometry(Part.LineSegment(V(8.7, 6.4, 0), V(8.7, 7.2, 0)), False)
sketch9.addGeometry(Part.LineSegment(V(8.7, 7.2, 0), V(10.2, 7.2, 0)), False)
sketch9.addGeometry(Part.LineSegment(V(10.2, 7.2, 0), V(10.2, 6.4, 0)), False)
sketch9.addGeometry(Part.LineSegment(V(10.2, 6.4, 0), V(8.7, 6.4, 0)), False)
sketch9.addGeometry(Part.LineSegment(V(8.7, 7.9, 0), V(8.7, 8.7, 0)), False)
sketch9.addGeometry(Part.LineSegment(V(8.7, 8.7, 0), V(10.2, 8.7, 0)), False)
sketch9.addGeometry(Part.LineSegment(V(10.2, 8.7, 0), V(10.2, 7.9, 0)), False)
sketch9.addGeometry(Part.LineSegment(V(10.2, 7.9, 0), V(8.7, 7.9, 0)), False)
sketch9.addGeometry(Part.LineSegment(V(8.7, 9.4, 0), V(8.7, 10.2, 0)), False)
sketch9.addGeometry(Part.LineSegment(V(8.7, 10.2, 0), V(10.2, 10.2, 0)), False)
sketch9.addGeometry(Part.LineSegment(V(10.2, 10.2, 0), V(10.2, 9.4, 0)), False)
sketch9.addGeometry(Part.LineSegment(V(10.2, 9.4, 0), V(8.7, 9.4, 0)), False)
sketch9.addGeometry(Part.LineSegment(V(8.7, 10.9, 0), V(8.7, 11.7, 0)), False)
sketch9.addGeometry(Part.LineSegment(V(8.7, 11.7, 0), V(10.2, 11.7, 0)), False)
sketch9.addGeometry(Part.LineSegment(V(10.2, 11.7, 0), V(10.2, 10.9, 0)), False)
sketch9.addGeometry(Part.LineSegment(V(10.2, 10.9, 0), V(8.7, 10.9, 0)), False)
sketch9.addGeometry(Part.LineSegment(V(8.7, 12.4, 0), V(8.7, 13.2, 0)), False)
sketch9.addGeometry(Part.LineSegment(V(8.7, 13.2, 0), V(10.2, 13.2, 0)), False)
sketch9.addGeometry(Part.LineSegment(V(10.2, 13.2, 0), V(10.2, 12.4, 0)), False)
sketch9.addGeometry(Part.LineSegment(V(10.2, 12.4, 0), V(8.7, 12.4, 0)), False)
sketch9.addConstraint(Sketcher.Constraint("Coincident", 0, 2, 1, 1))
sketch9.addConstraint(Sketcher.Constraint("Coincident", 1, 2, 2, 1))
sketch9.addConstraint(Sketcher.Constraint("Coincident", 2, 2, 3, 1))
sketch9.addConstraint(Sketcher.Constraint("Coincident", 3, 2, 0, 1))
sketch9.addConstraint(Sketcher.Constraint("Coincident", 4, 2, 5, 1))
sketch9.addConstraint(Sketcher.Constraint("Coincident", 5, 2, 6, 1))
sketch9.addConstraint(Sketcher.Constraint("Coincident", 6, 2, 7, 1))
sketch9.addConstraint(Sketcher.Constraint("Coincident", 7, 2, 4, 1))
sketch9.addConstraint(Sketcher.Constraint("Coincident", 8, 2, 9, 1))
sketch9.addConstraint(Sketcher.Constraint("Coincident", 9, 2, 10, 1))
sketch9.addConstraint(Sketcher.Constraint("Coincident", 10, 2, 11, 1))
sketch9.addConstraint(Sketcher.Constraint("Coincident", 11, 2, 8, 1))
sketch9.addConstraint(Sketcher.Constraint("Coincident", 12, 2, 13, 1))
sketch9.addConstraint(Sketcher.Constraint("Coincident", 13, 2, 14, 1))
sketch9.addConstraint(Sketcher.Constraint("Coincident", 14, 2, 15, 1))
sketch9.addConstraint(Sketcher.Constraint("Coincident", 15, 2, 12, 1))
sketch9.addConstraint(Sketcher.Constraint("Coincident", 16, 2, 17, 1))
sketch9.addConstraint(Sketcher.Constraint("Coincident", 17, 2, 18, 1))
sketch9.addConstraint(Sketcher.Constraint("Coincident", 18, 2, 19, 1))
sketch9.addConstraint(Sketcher.Constraint("Coincident", 19, 2, 16, 1))
sketch9.addConstraint(Sketcher.Constraint("Coincident", 20, 2, 21, 1))
sketch9.addConstraint(Sketcher.Constraint("Coincident", 21, 2, 22, 1))
sketch9.addConstraint(Sketcher.Constraint("Coincident", 22, 2, 23, 1))
sketch9.addConstraint(Sketcher.Constraint("Coincident", 23, 2, 20, 1))
sketch9.addConstraint(Sketcher.Constraint("Vertical", 0))
sketch9.addConstraint(Sketcher.Constraint("Horizontal", 1))
sketch9.addConstraint(Sketcher.Constraint("Vertical", 2))
sketch9.addConstraint(Sketcher.Constraint("Horizontal", 3))
sketch9.addConstraint(Sketcher.Constraint("Vertical", 4))
sketch9.addConstraint(Sketcher.Constraint("Horizontal", 5))
sketch9.addConstraint(Sketcher.Constraint("Vertical", 6))
sketch9.addConstraint(Sketcher.Constraint("Horizontal", 7))
sketch9.addConstraint(Sketcher.Constraint("Vertical", 8))
sketch9.addConstraint(Sketcher.Constraint("Horizontal", 9))
sketch9.addConstraint(Sketcher.Constraint("Vertical", 10))
sketch9.addConstraint(Sketcher.Constraint("Horizontal", 11))
sketch9.addConstraint(Sketcher.Constraint("Vertical", 12))
sketch9.addConstraint(Sketcher.Constraint("Horizontal", 13))
sketch9.addConstraint(Sketcher.Constraint("Vertical", 14))
sketch9.addConstraint(Sketcher.Constraint("Horizontal", 15))
sketch9.addConstraint(Sketcher.Constraint("Vertical", 16))
sketch9.addConstraint(Sketcher.Constraint("Horizontal", 17))
sketch9.addConstraint(Sketcher.Constraint("Vertical", 18))
sketch9.addConstraint(Sketcher.Constraint("Horizontal", 19))
sketch9.addConstraint(Sketcher.Constraint("Vertical", 20))
sketch9.addConstraint(Sketcher.Constraint("Horizontal", 21))
sketch9.addConstraint(Sketcher.Constraint("Vertical", 22))
sketch9.addConstraint(Sketcher.Constraint("Horizontal", 23))
sketch9.addConstraint(Sketcher.Constraint("Vertical", 3, 2, 4, 2))
sketch9.addConstraint(Sketcher.Constraint("Vertical", 2, 2, 5, 2))
sketch9.addConstraint(Sketcher.Constraint("Vertical", 7, 2, 8, 2))
sketch9.addConstraint(Sketcher.Constraint("Vertical", 6, 2, 9, 2))
sketch9.addConstraint(Sketcher.Constraint("Vertical", 11, 2, 12, 2))
sketch9.addConstraint(Sketcher.Constraint("Vertical", 10, 2, 13, 2))
sketch9.addConstraint(Sketcher.Constraint("Vertical", 15, 2, 16, 2))
sketch9.addConstraint(Sketcher.Constraint("Vertical", 14, 2, 17, 2))
sketch9.addConstraint(Sketcher.Constraint("Vertical", 19, 2, 20, 2))
sketch9.addConstraint(Sketcher.Constraint("Vertical", 18, 2, 21, 2))
sketch9.addConstraint(Sketcher.Constraint("Equal", 2, 4))
sketch9.addConstraint(Sketcher.Constraint("Equal", 6, 8))
sketch9.addConstraint(Sketcher.Constraint("Equal", 10, 12))
sketch9.addConstraint(Sketcher.Constraint("Equal", 14, 16))
sketch9.addConstraint(Sketcher.Constraint("Equal", 18, 20))
sketch9.addConstraint(Sketcher.Constraint("DistanceX", 1, 1, 1, 2, Q("1.5 mm")))
sketch9.addConstraint(Sketcher.Constraint("DistanceY", 0, 1, 0, 2, Q("0.8 mm")))
sketch9.addConstraint(Sketcher.Constraint("DistanceY", 0, 2, 8, 2, Q("3 mm")))
sketch9.addConstraint(Sketcher.Constraint("DistanceY", 4, 2, 12, 2, Q("3 mm")))
sketch9.addConstraint(Sketcher.Constraint("DistanceY", 8, 2, 16, 2, Q("3 mm")))
sketch9.addConstraint(Sketcher.Constraint("DistanceY", 12, 2, 20, 2, Q("3 mm")))
sketch9.addConstraint(Sketcher.Constraint("DistanceX", -1, 1, 0, 2, Q("8.7 mm")))
sketch9.addConstraint(Sketcher.Constraint("DistanceY", 0, 2, 4, 2, Q("1.5 mm")))
sketch9.addConstraint(Sketcher.Constraint("DistanceY", -1, 1, 0, 2, Q("5.723633 mm")))
pad7 = body.newObject("PartDesign::Pad", "Pad006")
pad7.Profile = sketch9
pad7.Length = 0.6
pad7.Reversed = True
doc.recompute()

fillet2 = body.newObject("PartDesign::Fillet", "Fillet001")
fillet2.Base = (pad7, edges_at(pad7, [
    (1.4, 1.6, 2.5),
    (1.4, 1.6, 1),
    (2.9, 1.6, 2.5),
    (2.9, 1.6, 1),
    (4.4, 1.6, 2.5),
    (4.4, 1.6, 1),
    (5.9, 1.6, 2.5),
    (5.9, 1.6, 1),
    (8.7, 1.6, 5.324),
    (10.2, 1.6, 5.324),
    (8.7, 1.6, 6.824),
    (10.2, 1.6, 6.824),
    (8.7, 1.6, 8.324),
    (10.2, 1.6, 8.324),
    (8.7, 1.6, 9.824),
    (10.2, 1.6, 9.824),
    (8.7, 1.6, 11.324),
    (10.2, 1.6, 11.324),
    (8.7, 1.6, 12.824),
    (10.2, 1.6, 12.824),
]))
fillet2.Radius = 0.3

# Sketch on XZ plane
sketch10 = body.newObject("Sketcher::SketchObject", "Sketch009")
sketch10.AttachmentSupport = (doc.getObject("XZ_Plane"), [""])
sketch10.MapMode = "FlatFace"
sketch10.AttachmentOffset = App.Placement(V(0, 0, -2.8), App.Rotation())
sketch10.addGeometry(Part.Circle(V(9, 2.27, 0), V(0, 0, 1), 0.4), False)
sketch10.addConstraint(Sketcher.Constraint("Diameter", 0, Q("0.8 mm")))
sketch10.addConstraint(Sketcher.Constraint("DistanceX", -1, 1, 0, 3, Q("9 mm")))
sketch10.addConstraint(Sketcher.Constraint("DistanceY", -1, 1, 0, 3, Q("2.271806 mm")))
pocket3 = body.newObject("PartDesign::Pocket", "Pocket002")
pocket3.Profile = sketch10
pocket3.Length = 0.2
pocket3.Reversed = True

# Sketch on XZ plane
sketch11 = body.newObject("Sketcher::SketchObject", "Sketch010")
sketch11.AttachmentSupport = (doc.getObject("XZ_Plane"), [""])
sketch11.MapMode = "FlatFace"
sketch11.AttachmentOffset = App.Placement(V(0, 0, -1.6), App.Rotation())
sketch11.addGeometry(Part.LineSegment(V(1.7, 4.5, 0), V(1.7, 6, 0)), False)
sketch11.addGeometry(Part.LineSegment(V(1.7, 6, 0), V(4.7, 6, 0)), False)
sketch11.addGeometry(Part.LineSegment(V(4.7, 6, 0), V(4.7, 4.5, 0)), False)
sketch11.addGeometry(Part.LineSegment(V(4.7, 4.5, 0), V(1.7, 4.5, 0)), False)
sketch11.addConstraint(Sketcher.Constraint("Coincident", 0, 2, 1, 1))
sketch11.addConstraint(Sketcher.Constraint("Coincident", 1, 2, 2, 1))
sketch11.addConstraint(Sketcher.Constraint("Coincident", 2, 2, 3, 1))
sketch11.addConstraint(Sketcher.Constraint("Coincident", 3, 2, 0, 1))
sketch11.addConstraint(Sketcher.Constraint("Vertical", 0))
sketch11.addConstraint(Sketcher.Constraint("Horizontal", 1))
sketch11.addConstraint(Sketcher.Constraint("Vertical", 2))
sketch11.addConstraint(Sketcher.Constraint("Horizontal", 3))
sketch11.addConstraint(Sketcher.Constraint("DistanceX", 1, 1, 1, 2, Q("3 mm")))
sketch11.addConstraint(Sketcher.Constraint("DistanceY", 0, 1, 0, 2, Q("1.5 mm")))
sketch11.addConstraint(Sketcher.Constraint("DistanceY", -1, 1, 0, 2, Q("6 mm")))
sketch11.addConstraint(Sketcher.Constraint("DistanceX", -1, 1, 0, 2, Q("1.689394 mm")))
pad8 = body.newObject("PartDesign::Pad", "Pad007")
pad8.Profile = sketch11
pad8.Length = 0.5
pad8.Reversed = True

# Sketch on XZ plane
sketch12 = body.newObject("Sketcher::SketchObject", "Sketch011")
sketch12.AttachmentSupport = (doc.getObject("XZ_Plane"), [""])
sketch12.MapMode = "FlatFace"
sketch12.AttachmentOffset = App.Placement(V(0, 0, -1.6), App.Rotation())
sketch12.addGeometry(Part.LineSegment(V(1.69, 3.9, 0), V(1.69, 4.5, 0)), False)
sketch12.addGeometry(Part.LineSegment(V(1.69, 4.5, 0), V(1.94, 4.5, 0)), False)
sketch12.addGeometry(Part.LineSegment(V(1.94, 4.5, 0), V(1.94, 3.9, 0)), False)
sketch12.addGeometry(Part.LineSegment(V(1.94, 3.9, 0), V(1.69, 3.9, 0)), False)
sketch12.addGeometry(Part.LineSegment(V(2.6, 3.9, 0), V(2.6, 4.5, 0)), False)
sketch12.addGeometry(Part.LineSegment(V(2.6, 4.5, 0), V(2.85, 4.5, 0)), False)
sketch12.addGeometry(Part.LineSegment(V(2.85, 4.5, 0), V(2.85, 3.9, 0)), False)
sketch12.addGeometry(Part.LineSegment(V(2.85, 3.9, 0), V(2.6, 3.9, 0)), False)
sketch12.addGeometry(Part.LineSegment(V(3.51, 3.9, 0), V(3.51, 4.5, 0)), False)
sketch12.addGeometry(Part.LineSegment(V(3.51, 4.5, 0), V(3.76, 4.5, 0)), False)
sketch12.addGeometry(Part.LineSegment(V(3.76, 4.5, 0), V(3.76, 3.9, 0)), False)
sketch12.addGeometry(Part.LineSegment(V(3.76, 3.9, 0), V(3.51, 3.9, 0)), False)
sketch12.addGeometry(Part.LineSegment(V(4.42, 3.9, 0), V(4.42, 4.5, 0)), False)
sketch12.addGeometry(Part.LineSegment(V(4.42, 4.5, 0), V(4.67, 4.5, 0)), False)
sketch12.addGeometry(Part.LineSegment(V(4.67, 4.5, 0), V(4.67, 3.9, 0)), False)
sketch12.addGeometry(Part.LineSegment(V(4.67, 3.9, 0), V(4.42, 3.9, 0)), False)
sketch12.addGeometry(Part.LineSegment(V(4.42, 6, 0), V(4.42, 6.6, 0)), False)
sketch12.addGeometry(Part.LineSegment(V(4.42, 6.6, 0), V(4.67, 6.6, 0)), False)
sketch12.addGeometry(Part.LineSegment(V(4.67, 6.6, 0), V(4.67, 6, 0)), False)
sketch12.addGeometry(Part.LineSegment(V(4.67, 6, 0), V(4.42, 6, 0)), False)
sketch12.addGeometry(Part.LineSegment(V(3.51, 6, 0), V(3.51, 6.6, 0)), False)
sketch12.addGeometry(Part.LineSegment(V(3.51, 6.6, 0), V(3.76, 6.6, 0)), False)
sketch12.addGeometry(Part.LineSegment(V(3.76, 6.6, 0), V(3.76, 6, 0)), False)
sketch12.addGeometry(Part.LineSegment(V(3.76, 6, 0), V(3.51, 6, 0)), False)
sketch12.addGeometry(Part.LineSegment(V(2.6, 6, 0), V(2.6, 6.6, 0)), False)
sketch12.addGeometry(Part.LineSegment(V(2.6, 6.6, 0), V(2.85, 6.6, 0)), False)
sketch12.addGeometry(Part.LineSegment(V(2.85, 6.6, 0), V(2.85, 6, 0)), False)
sketch12.addGeometry(Part.LineSegment(V(2.85, 6, 0), V(2.6, 6, 0)), False)
sketch12.addGeometry(Part.LineSegment(V(1.69, 6, 0), V(1.69, 6.6, 0)), False)
sketch12.addGeometry(Part.LineSegment(V(1.69, 6.6, 0), V(1.94, 6.6, 0)), False)
sketch12.addGeometry(Part.LineSegment(V(1.94, 6.6, 0), V(1.94, 6, 0)), False)
sketch12.addGeometry(Part.LineSegment(V(1.94, 6, 0), V(1.69, 6, 0)), False)
sketch12.addConstraint(Sketcher.Constraint("Coincident", 0, 2, 1, 1))
sketch12.addConstraint(Sketcher.Constraint("Coincident", 1, 2, 2, 1))
sketch12.addConstraint(Sketcher.Constraint("Coincident", 2, 2, 3, 1))
sketch12.addConstraint(Sketcher.Constraint("Coincident", 3, 2, 0, 1))
sketch12.addConstraint(Sketcher.Constraint("Coincident", 4, 2, 5, 1))
sketch12.addConstraint(Sketcher.Constraint("Coincident", 5, 2, 6, 1))
sketch12.addConstraint(Sketcher.Constraint("Coincident", 6, 2, 7, 1))
sketch12.addConstraint(Sketcher.Constraint("Coincident", 7, 2, 4, 1))
sketch12.addConstraint(Sketcher.Constraint("Coincident", 8, 2, 9, 1))
sketch12.addConstraint(Sketcher.Constraint("Coincident", 9, 2, 10, 1))
sketch12.addConstraint(Sketcher.Constraint("Coincident", 10, 2, 11, 1))
sketch12.addConstraint(Sketcher.Constraint("Coincident", 11, 2, 8, 1))
sketch12.addConstraint(Sketcher.Constraint("Coincident", 12, 2, 13, 1))
sketch12.addConstraint(Sketcher.Constraint("Coincident", 13, 2, 14, 1))
sketch12.addConstraint(Sketcher.Constraint("Coincident", 14, 2, 15, 1))
sketch12.addConstraint(Sketcher.Constraint("Coincident", 15, 2, 12, 1))
sketch12.addConstraint(Sketcher.Constraint("Coincident", 16, 2, 17, 1))
sketch12.addConstraint(Sketcher.Constraint("Coincident", 17, 2, 18, 1))
sketch12.addConstraint(Sketcher.Constraint("Coincident", 18, 2, 19, 1))
sketch12.addConstraint(Sketcher.Constraint("Coincident", 19, 2, 16, 1))
sketch12.addConstraint(Sketcher.Constraint("Coincident", 20, 2, 21, 1))
sketch12.addConstraint(Sketcher.Constraint("Coincident", 21, 2, 22, 1))
sketch12.addConstraint(Sketcher.Constraint("Coincident", 22, 2, 23, 1))
sketch12.addConstraint(Sketcher.Constraint("Coincident", 23, 2, 20, 1))
sketch12.addConstraint(Sketcher.Constraint("Coincident", 24, 2, 25, 1))
sketch12.addConstraint(Sketcher.Constraint("Coincident", 25, 2, 26, 1))
sketch12.addConstraint(Sketcher.Constraint("Coincident", 26, 2, 27, 1))
sketch12.addConstraint(Sketcher.Constraint("Coincident", 27, 2, 24, 1))
sketch12.addConstraint(Sketcher.Constraint("Coincident", 28, 2, 29, 1))
sketch12.addConstraint(Sketcher.Constraint("Coincident", 29, 2, 30, 1))
sketch12.addConstraint(Sketcher.Constraint("Coincident", 30, 2, 31, 1))
sketch12.addConstraint(Sketcher.Constraint("Coincident", 31, 2, 28, 1))
sketch12.addConstraint(Sketcher.Constraint("Vertical", 0))
sketch12.addConstraint(Sketcher.Constraint("Horizontal", 1))
sketch12.addConstraint(Sketcher.Constraint("Vertical", 2))
sketch12.addConstraint(Sketcher.Constraint("Horizontal", 3))
sketch12.addConstraint(Sketcher.Constraint("Vertical", 4))
sketch12.addConstraint(Sketcher.Constraint("Horizontal", 5))
sketch12.addConstraint(Sketcher.Constraint("Vertical", 6))
sketch12.addConstraint(Sketcher.Constraint("Horizontal", 7))
sketch12.addConstraint(Sketcher.Constraint("Vertical", 8))
sketch12.addConstraint(Sketcher.Constraint("Horizontal", 9))
sketch12.addConstraint(Sketcher.Constraint("Vertical", 10))
sketch12.addConstraint(Sketcher.Constraint("Horizontal", 11))
sketch12.addConstraint(Sketcher.Constraint("Vertical", 12))
sketch12.addConstraint(Sketcher.Constraint("Horizontal", 13))
sketch12.addConstraint(Sketcher.Constraint("Vertical", 14))
sketch12.addConstraint(Sketcher.Constraint("Horizontal", 15))
sketch12.addConstraint(Sketcher.Constraint("Vertical", 16))
sketch12.addConstraint(Sketcher.Constraint("Horizontal", 17))
sketch12.addConstraint(Sketcher.Constraint("Vertical", 18))
sketch12.addConstraint(Sketcher.Constraint("Horizontal", 19))
sketch12.addConstraint(Sketcher.Constraint("Vertical", 20))
sketch12.addConstraint(Sketcher.Constraint("Horizontal", 21))
sketch12.addConstraint(Sketcher.Constraint("Vertical", 22))
sketch12.addConstraint(Sketcher.Constraint("Horizontal", 23))
sketch12.addConstraint(Sketcher.Constraint("Vertical", 24))
sketch12.addConstraint(Sketcher.Constraint("Horizontal", 25))
sketch12.addConstraint(Sketcher.Constraint("Vertical", 26))
sketch12.addConstraint(Sketcher.Constraint("Horizontal", 27))
sketch12.addConstraint(Sketcher.Constraint("Vertical", 28))
sketch12.addConstraint(Sketcher.Constraint("Horizontal", 29))
sketch12.addConstraint(Sketcher.Constraint("Vertical", 30))
sketch12.addConstraint(Sketcher.Constraint("Horizontal", 31))
sketch12.addConstraint(Sketcher.Constraint("Horizontal", 1, 2, 4, 2))
sketch12.addConstraint(Sketcher.Constraint("Horizontal", 3, 2, 6, 2))
sketch12.addConstraint(Sketcher.Constraint("Horizontal", 5, 2, 8, 2))
sketch12.addConstraint(Sketcher.Constraint("Horizontal", 7, 2, 10, 2))
sketch12.addConstraint(Sketcher.Constraint("Horizontal", 9, 2, 12, 2))
sketch12.addConstraint(Sketcher.Constraint("Horizontal", 11, 2, 14, 2))
sketch12.addConstraint(Sketcher.Constraint("Horizontal", 17, 2, 20, 2))
sketch12.addConstraint(Sketcher.Constraint("Horizontal", 19, 2, 22, 2))
sketch12.addConstraint(Sketcher.Constraint("Horizontal", 21, 2, 24, 2))
sketch12.addConstraint(Sketcher.Constraint("Horizontal", 23, 2, 26, 2))
sketch12.addConstraint(Sketcher.Constraint("Horizontal", 25, 2, 28, 2))
sketch12.addConstraint(Sketcher.Constraint("Horizontal", 27, 2, 30, 2))
sketch12.addConstraint(Sketcher.Constraint("Vertical", 15, 2, 16, 2))
sketch12.addConstraint(Sketcher.Constraint("Vertical", 14, 2, 17, 2))
sketch12.addConstraint(Sketcher.Constraint("Vertical", 11, 2, 20, 2))
sketch12.addConstraint(Sketcher.Constraint("Vertical", 10, 2, 21, 2))
sketch12.addConstraint(Sketcher.Constraint("Vertical", 7, 2, 24, 2))
sketch12.addConstraint(Sketcher.Constraint("Vertical", 6, 2, 25, 2))
sketch12.addConstraint(Sketcher.Constraint("Vertical", 3, 2, 28, 2))
sketch12.addConstraint(Sketcher.Constraint("Vertical", 2, 2, 29, 2))
sketch12.addConstraint(Sketcher.Constraint("Equal", 3, 5))
sketch12.addConstraint(Sketcher.Constraint("Equal", 7, 9))
sketch12.addConstraint(Sketcher.Constraint("Equal", 11, 13))
sketch12.addConstraint(Sketcher.Constraint("Equal", 14, 16))
sketch12.addConstraint(Sketcher.Constraint("DistanceY", 0, 1, 0, 2, Q("0.6 mm")))
sketch12.addConstraint(Sketcher.Constraint("DistanceY", -1, 1, 18, 2, Q("6 mm")))
sketch12.addConstraint(Sketcher.Constraint("DistanceX", 1, 1, 1, 2, Q("0.25 mm")))
sketch12.addConstraint(Sketcher.Constraint("DistanceY", -1, 1, 0, 2, Q("4.5 mm")))
sketch12.addConstraint(Sketcher.Constraint("DistanceX", 1, 2, 4, 2, Q("0.66 mm")))
sketch12.addConstraint(Sketcher.Constraint("DistanceX", 5, 2, 8, 2, Q("0.66 mm")))
sketch12.addConstraint(Sketcher.Constraint("DistanceX", 9, 2, 12, 2, Q("0.66 mm")))
sketch12.addConstraint(Sketcher.Constraint("DistanceX", -1, 1, 0, 2, Q("1.689394 mm")))
pad9 = body.newObject("PartDesign::Pad", "Pad008")
pad9.Profile = sketch12
pad9.Length = 0.2
pad9.Reversed = True
doc.recompute()

fillet3 = body.newObject("PartDesign::Fillet", "Fillet002")
fillet3.Base = (pad9, edges_at(pad9, [
    (1.814, 1.8, 4.5),
    (2.724, 1.8, 4.5),
    (3.634, 1.8, 4.5),
    (4.544, 1.8, 4.5),
    (4.544, 1.8, 6),
    (3.634, 1.8, 6),
    (2.724, 1.8, 6),
    (1.814, 1.8, 6),
]))
fillet3.Radius = 0.2
doc.recompute()

fillet4 = body.newObject("PartDesign::Fillet", "Fillet003")
fillet4.Base = (fillet3, edges_at(fillet3, [
    (0.65, 3.1, 6.7),
    (0.65, 3.1, 14),
    (7.95, 3.1, 14),
    (7.95, 3.1, 6.7),
]))
fillet4.Radius = 0.5

doc.recompute()
